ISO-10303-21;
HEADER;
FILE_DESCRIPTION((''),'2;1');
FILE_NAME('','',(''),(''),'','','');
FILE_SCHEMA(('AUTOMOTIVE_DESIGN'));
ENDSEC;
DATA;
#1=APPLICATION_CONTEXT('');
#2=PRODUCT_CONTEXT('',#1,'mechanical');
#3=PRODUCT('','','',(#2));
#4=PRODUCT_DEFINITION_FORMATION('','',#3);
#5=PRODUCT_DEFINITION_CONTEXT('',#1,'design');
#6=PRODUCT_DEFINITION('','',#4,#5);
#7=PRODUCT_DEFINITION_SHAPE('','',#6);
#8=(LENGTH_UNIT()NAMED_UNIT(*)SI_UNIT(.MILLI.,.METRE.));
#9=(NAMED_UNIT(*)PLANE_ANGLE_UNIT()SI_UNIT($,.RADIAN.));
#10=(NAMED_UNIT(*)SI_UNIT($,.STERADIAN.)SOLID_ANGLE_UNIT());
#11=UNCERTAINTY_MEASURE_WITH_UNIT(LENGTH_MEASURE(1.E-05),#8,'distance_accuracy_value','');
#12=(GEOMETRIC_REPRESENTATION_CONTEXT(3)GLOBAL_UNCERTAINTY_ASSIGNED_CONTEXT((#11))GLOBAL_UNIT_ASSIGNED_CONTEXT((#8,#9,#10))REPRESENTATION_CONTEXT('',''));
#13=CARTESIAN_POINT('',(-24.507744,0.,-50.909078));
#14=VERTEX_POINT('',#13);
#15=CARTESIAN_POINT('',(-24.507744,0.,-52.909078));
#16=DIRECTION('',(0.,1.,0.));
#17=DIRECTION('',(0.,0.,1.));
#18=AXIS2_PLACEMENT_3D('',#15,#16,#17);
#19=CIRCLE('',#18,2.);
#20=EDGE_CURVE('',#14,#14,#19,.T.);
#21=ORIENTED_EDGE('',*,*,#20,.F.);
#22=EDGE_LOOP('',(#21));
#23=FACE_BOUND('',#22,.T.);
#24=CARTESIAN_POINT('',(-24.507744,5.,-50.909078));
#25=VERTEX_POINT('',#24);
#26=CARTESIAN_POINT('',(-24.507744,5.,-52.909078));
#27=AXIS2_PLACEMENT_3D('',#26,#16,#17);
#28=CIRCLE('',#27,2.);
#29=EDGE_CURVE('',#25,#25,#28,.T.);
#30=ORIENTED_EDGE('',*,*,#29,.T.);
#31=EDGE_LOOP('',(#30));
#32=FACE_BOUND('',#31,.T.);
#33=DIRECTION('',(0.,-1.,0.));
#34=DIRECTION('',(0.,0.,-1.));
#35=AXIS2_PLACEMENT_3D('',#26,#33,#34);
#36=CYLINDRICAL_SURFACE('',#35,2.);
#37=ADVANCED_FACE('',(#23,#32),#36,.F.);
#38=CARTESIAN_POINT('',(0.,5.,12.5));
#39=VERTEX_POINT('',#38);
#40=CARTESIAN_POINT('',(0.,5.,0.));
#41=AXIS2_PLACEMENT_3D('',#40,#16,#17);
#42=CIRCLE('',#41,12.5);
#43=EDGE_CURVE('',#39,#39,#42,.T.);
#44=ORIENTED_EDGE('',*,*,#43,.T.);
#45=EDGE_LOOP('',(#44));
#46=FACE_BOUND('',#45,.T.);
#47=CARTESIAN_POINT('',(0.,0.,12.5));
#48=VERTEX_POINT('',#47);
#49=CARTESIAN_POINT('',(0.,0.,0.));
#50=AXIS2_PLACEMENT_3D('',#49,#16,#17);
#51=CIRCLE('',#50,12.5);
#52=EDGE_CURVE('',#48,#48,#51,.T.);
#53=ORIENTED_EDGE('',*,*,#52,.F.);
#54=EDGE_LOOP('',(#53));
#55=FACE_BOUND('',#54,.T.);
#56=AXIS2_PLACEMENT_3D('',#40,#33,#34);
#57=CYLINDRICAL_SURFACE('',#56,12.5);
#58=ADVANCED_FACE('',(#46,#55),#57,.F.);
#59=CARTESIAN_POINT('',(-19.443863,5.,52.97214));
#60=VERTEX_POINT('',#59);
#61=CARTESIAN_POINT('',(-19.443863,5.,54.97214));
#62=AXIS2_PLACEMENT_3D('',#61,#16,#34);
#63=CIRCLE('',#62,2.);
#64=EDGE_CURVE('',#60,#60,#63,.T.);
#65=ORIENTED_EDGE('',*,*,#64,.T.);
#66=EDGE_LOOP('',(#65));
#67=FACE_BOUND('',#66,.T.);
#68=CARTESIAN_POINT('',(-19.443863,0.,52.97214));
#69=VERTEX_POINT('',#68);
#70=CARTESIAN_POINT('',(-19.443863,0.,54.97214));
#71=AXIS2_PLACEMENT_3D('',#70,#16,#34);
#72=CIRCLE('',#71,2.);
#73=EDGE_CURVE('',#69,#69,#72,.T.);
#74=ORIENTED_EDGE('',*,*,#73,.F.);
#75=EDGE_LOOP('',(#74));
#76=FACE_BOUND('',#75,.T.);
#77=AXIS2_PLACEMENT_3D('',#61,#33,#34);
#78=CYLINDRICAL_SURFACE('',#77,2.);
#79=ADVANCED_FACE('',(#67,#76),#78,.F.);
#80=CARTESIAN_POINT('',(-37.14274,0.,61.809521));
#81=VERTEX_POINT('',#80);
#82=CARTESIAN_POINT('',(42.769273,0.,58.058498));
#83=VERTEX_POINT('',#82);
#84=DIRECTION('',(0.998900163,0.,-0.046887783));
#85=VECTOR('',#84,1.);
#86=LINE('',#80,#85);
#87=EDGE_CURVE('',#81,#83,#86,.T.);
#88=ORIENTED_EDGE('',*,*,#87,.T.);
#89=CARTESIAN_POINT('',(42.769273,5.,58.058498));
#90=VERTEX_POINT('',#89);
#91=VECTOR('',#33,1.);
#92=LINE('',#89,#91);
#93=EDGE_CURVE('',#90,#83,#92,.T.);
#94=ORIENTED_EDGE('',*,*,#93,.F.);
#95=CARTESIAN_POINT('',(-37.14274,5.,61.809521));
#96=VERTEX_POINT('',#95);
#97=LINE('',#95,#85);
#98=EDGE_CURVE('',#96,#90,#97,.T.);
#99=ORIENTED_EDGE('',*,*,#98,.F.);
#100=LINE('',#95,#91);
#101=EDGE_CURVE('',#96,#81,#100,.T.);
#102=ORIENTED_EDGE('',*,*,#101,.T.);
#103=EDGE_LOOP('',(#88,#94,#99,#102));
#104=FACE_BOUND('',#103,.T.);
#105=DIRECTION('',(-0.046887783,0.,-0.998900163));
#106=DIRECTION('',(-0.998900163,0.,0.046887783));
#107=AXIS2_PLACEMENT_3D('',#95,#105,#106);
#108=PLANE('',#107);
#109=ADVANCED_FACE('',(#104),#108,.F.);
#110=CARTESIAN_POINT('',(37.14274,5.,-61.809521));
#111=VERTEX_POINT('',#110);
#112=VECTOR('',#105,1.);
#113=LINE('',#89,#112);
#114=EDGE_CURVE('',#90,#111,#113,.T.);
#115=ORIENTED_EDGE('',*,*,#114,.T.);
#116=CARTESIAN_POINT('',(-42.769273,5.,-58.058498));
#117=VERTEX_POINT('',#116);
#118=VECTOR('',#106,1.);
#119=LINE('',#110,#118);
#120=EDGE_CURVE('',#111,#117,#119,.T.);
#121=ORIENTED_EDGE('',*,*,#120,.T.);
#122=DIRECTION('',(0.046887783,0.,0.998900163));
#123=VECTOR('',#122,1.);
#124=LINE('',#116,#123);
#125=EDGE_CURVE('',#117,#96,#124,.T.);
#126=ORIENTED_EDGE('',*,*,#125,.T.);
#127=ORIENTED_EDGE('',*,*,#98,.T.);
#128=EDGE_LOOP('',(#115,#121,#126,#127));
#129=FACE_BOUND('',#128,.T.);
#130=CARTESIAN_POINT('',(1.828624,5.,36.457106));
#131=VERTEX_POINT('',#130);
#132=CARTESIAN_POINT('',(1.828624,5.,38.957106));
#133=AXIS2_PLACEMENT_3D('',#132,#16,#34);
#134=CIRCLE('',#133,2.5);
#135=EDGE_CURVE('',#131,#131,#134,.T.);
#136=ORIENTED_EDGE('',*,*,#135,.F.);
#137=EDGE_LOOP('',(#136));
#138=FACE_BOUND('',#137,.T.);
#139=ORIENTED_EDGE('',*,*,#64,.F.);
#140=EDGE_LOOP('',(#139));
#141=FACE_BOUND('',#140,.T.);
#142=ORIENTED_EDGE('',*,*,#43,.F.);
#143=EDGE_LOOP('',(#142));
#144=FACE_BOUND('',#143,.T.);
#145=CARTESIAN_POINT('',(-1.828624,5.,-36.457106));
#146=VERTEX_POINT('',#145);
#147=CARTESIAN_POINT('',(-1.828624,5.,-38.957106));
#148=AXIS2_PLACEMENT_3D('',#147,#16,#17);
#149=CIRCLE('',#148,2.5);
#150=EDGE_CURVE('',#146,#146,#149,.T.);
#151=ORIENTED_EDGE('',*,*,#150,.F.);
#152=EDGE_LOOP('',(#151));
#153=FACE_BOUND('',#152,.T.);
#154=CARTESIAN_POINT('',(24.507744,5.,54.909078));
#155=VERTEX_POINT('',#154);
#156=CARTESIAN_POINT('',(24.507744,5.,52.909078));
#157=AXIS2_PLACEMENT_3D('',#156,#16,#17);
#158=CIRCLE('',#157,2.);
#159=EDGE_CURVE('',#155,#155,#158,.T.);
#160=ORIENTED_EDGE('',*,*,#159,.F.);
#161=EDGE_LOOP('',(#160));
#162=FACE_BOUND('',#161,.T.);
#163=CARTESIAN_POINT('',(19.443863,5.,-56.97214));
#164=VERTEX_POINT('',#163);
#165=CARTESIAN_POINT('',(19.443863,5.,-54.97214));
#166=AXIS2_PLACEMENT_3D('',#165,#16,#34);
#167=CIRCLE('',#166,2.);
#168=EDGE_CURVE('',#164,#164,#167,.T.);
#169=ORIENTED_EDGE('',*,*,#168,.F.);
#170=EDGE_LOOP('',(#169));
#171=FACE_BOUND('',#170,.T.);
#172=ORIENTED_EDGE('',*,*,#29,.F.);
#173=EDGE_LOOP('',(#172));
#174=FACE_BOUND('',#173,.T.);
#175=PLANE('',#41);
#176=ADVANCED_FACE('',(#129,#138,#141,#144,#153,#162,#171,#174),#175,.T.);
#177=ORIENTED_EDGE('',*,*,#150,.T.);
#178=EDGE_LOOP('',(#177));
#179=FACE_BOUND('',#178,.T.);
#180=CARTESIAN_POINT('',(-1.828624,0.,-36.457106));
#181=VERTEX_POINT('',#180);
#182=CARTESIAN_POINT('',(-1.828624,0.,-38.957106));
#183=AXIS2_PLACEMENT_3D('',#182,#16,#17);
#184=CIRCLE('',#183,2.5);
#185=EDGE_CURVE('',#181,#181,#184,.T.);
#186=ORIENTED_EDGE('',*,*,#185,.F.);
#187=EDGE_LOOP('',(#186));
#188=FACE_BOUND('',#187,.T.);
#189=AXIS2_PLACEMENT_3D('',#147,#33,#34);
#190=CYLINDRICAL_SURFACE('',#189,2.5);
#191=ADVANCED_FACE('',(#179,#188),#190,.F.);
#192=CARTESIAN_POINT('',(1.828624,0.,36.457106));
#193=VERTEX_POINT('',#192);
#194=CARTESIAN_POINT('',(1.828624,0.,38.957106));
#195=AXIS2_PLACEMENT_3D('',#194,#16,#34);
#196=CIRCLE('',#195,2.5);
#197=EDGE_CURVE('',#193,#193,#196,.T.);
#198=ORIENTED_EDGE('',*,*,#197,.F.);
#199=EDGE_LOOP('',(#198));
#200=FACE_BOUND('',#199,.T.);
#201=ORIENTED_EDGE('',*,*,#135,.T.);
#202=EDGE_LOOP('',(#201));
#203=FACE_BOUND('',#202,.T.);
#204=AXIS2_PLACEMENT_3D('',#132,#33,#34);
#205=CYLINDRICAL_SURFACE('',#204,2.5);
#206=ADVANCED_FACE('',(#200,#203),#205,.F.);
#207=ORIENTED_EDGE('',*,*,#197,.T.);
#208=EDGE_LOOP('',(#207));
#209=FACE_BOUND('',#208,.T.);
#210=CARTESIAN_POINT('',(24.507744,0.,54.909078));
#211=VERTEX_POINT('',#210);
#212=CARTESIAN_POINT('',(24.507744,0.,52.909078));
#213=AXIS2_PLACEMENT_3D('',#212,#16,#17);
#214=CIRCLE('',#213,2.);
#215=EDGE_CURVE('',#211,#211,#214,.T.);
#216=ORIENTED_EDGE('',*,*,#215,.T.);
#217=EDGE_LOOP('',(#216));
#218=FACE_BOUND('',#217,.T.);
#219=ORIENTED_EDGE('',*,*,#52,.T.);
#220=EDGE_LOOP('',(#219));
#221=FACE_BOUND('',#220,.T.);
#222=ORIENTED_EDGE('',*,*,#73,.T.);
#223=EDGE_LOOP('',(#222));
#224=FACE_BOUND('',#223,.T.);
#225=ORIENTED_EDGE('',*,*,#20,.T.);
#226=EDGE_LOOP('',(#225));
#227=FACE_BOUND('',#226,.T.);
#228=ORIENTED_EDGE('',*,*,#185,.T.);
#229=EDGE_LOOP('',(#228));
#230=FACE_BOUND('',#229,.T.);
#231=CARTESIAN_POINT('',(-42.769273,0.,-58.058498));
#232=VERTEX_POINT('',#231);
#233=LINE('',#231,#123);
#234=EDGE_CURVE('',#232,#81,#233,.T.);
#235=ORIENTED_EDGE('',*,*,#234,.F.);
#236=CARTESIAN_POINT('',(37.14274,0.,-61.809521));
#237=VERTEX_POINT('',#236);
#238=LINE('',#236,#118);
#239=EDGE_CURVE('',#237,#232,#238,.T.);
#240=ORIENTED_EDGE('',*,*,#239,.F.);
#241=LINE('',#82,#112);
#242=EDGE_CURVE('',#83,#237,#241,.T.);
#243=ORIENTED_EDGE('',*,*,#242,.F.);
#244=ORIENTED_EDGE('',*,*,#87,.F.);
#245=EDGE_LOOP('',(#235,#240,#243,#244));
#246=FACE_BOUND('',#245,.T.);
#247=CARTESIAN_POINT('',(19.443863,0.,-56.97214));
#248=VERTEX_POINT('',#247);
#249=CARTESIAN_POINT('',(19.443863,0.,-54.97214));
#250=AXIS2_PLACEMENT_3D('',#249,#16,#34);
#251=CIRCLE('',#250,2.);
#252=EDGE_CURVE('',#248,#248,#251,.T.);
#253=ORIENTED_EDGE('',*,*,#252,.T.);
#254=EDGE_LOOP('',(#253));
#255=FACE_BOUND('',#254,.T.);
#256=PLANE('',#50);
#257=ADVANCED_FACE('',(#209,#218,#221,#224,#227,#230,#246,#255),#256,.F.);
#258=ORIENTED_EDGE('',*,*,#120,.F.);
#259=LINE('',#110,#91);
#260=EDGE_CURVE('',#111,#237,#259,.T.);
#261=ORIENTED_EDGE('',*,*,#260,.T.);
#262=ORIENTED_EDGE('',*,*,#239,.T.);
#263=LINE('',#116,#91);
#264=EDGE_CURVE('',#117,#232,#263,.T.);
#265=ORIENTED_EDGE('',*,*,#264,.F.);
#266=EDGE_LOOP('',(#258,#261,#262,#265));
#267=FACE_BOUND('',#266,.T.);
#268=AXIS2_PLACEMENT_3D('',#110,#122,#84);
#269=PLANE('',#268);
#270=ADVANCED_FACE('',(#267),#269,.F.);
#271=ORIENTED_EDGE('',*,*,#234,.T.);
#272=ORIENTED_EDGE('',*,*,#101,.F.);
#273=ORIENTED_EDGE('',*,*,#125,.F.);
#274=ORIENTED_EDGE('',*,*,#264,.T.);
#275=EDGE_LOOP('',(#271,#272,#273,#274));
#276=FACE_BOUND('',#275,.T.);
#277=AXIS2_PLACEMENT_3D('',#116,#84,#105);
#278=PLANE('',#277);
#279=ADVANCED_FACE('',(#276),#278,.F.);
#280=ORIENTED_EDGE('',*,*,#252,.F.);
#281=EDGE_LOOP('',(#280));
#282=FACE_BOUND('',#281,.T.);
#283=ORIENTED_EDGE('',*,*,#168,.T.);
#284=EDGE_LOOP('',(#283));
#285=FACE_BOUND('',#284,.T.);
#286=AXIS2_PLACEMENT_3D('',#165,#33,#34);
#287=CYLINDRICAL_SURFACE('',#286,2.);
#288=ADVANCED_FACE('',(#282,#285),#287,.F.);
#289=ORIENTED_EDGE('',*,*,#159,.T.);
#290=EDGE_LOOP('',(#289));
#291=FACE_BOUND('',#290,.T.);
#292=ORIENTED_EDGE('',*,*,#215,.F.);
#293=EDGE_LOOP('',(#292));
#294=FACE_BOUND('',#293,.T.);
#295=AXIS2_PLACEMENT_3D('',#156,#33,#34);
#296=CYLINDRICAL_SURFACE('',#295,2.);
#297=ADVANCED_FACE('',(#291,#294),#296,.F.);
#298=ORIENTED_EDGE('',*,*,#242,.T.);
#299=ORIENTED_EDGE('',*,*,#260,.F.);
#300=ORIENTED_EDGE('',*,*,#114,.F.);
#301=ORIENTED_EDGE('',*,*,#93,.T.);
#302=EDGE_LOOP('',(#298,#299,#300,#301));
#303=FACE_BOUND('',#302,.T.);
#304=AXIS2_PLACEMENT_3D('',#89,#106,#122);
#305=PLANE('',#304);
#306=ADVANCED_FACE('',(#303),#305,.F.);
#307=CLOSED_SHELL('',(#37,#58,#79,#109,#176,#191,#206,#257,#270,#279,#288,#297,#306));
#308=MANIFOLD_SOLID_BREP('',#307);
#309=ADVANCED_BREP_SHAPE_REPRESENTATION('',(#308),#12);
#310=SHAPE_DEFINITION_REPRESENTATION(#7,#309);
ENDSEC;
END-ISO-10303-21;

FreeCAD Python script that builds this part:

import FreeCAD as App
import Part
import Sketcher

doc = App.newDocument("Part")
params = doc.addObject("Spreadsheet::Sheet", "Params")
for row, (alias, value) in enumerate([
    ("sketch1_diameter", "4 mm"),
    ("sketch1_diameter2", "5 mm"),
    ("sketch1_diameter3", "25 mm"),
    ("sketch1_length", "120 mm"),
    ("sketch1_length2", "80 mm"),
    ("pad1_length", "5 mm"),
], start=1):
    params.set(f"A{row}", alias)
    params.set(f"B{row}", "=" + value)
    params.setAlias(f"B{row}", alias)

body = doc.addObject("PartDesign::Body", "Body")

sketch1 = body.newObject("Sketcher::SketchObject", "Sketch")
sketch1.AttachmentSupport = (doc.getObject("XZ_Plane"), [""])
sketch1.MapMode = "FlatFace"
sketch1.addGeometry(Part.LineSegment(App.Vector(-42.8, -58.1, 0), App.Vector(-37.1, 61.8, 0)), False)
sketch1.addGeometry(Part.LineSegment(App.Vector(-37.1, 61.8, 0), App.Vector(42.8, 58.1, 0)), False)
sketch1.addGeometry(Part.LineSegment(App.Vector(42.8, 58.1, 0), App.Vector(37.1, -61.8, 0)), False)
sketch1.addGeometry(Part.LineSegment(App.Vector(37.1, -61.8, 0), App.Vector(-42.8, -58.1, 0)), False)
sketch1.addGeometry(Part.Circle(App.Vector(-19.4, 55, 0), App.Vector(0, 0, 1), 2), False)
sketch1.addGeometry(Part.Circle(App.Vector(1.8, 39, 0), App.Vector(0, 0, 1), 2.5), False)
sketch1.addGeometry(Part.Circle(App.Vector(24.5, 52.9, 0), App.Vector(0, 0, 1), 2), False)
sketch1.addGeometry(Part.Circle(App.Vector(-24.5, -52.9, 0), App.Vector(0, 0, 1), 2), False)
sketch1.addGeometry(Part.Circle(App.Vector(0, 0, 0), App.Vector(0, 0, 1), 12.5), False)
sketch1.addGeometry(Part.Circle(App.Vector(-1.8, -39, 0), App.Vector(0, 0, 1), 2.5), False)
sketch1.addGeometry(Part.Circle(App.Vector(19.4, -55, 0), App.Vector(0, 0, 1), 2), False)
sketch1.addConstraint(Sketcher.Constraint("Coincident", 0, 2, 1, 1))
sketch1.addConstraint(Sketcher.Constraint("Coincident", 1, 2, 2, 1))
sketch1.addConstraint(Sketcher.Constraint("Coincident", 2, 2, 3, 1))
sketch1.addConstraint(Sketcher.Constraint("Coincident", 3, 2, 0, 1))
sketch1.addConstraint(Sketcher.Constraint("Coincident", 8, 3, -1, 1))
sketch1.addConstraint(Sketcher.Constraint("Equal", 4, 6))
sketch1.addConstraint(Sketcher.Constraint("Equal", 6, 7))
sketch1.addConstraint(Sketcher.Constraint("Equal", 5, 9))
sketch1.addConstraint(Sketcher.Constraint("Equal", 7, 10))
sketch1.addConstraint(Sketcher.Constraint("Symmetric", 6, 3, 7, 3, -1, 1))
sketch1.addConstraint(Sketcher.Constraint("Symmetric", 5, 3, 9, 3, -1, 1))
sketch1.addConstraint(Sketcher.Constraint("Symmetric", 4, 3, 10, 3, -1, 1))
sketch1.addConstraint(Sketcher.Constraint("Symmetric", 0, 2, 2, 2, -1, 1))
sketch1.addConstraint(Sketcher.Constraint("Symmetric", 1, 2, 3, 2, -1, 1))
sketch1.addConstraint(Sketcher.Constraint("Perpendicular", 0, 1))
sketch1.addConstraint(Sketcher.Constraint("Diameter", 4, 4.0))
sketch1.addConstraint(Sketcher.Constraint("Diameter", 5, 5.0))
sketch1.addConstraint(Sketcher.Constraint("Diameter", 8, 25.0))
sketch1.addConstraint(Sketcher.Constraint("Distance", 0, 120.0))
sketch1.addConstraint(Sketcher.Constraint("Distance", 1, 80.0))
sketch1.addConstraint(Sketcher.Constraint("DistanceY", -1, 1, 1, 2, 58.058498))
sketch1.addConstraint(Sketcher.Constraint("DistanceY", -1, 1, 4, 3, 54.97214))
sketch1.addConstraint(Sketcher.Constraint("DistanceX", 5, 3, 6, 3, 22.67912))
sketch1.addConstraint(Sketcher.Constraint("DistanceY", 5, 3, 6, 3, 13.951971))
sketch1.addConstraint(Sketcher.Constraint("DistanceX", 7, 3, 4, 3, 5.063881))
sketch1.addConstraint(Sketcher.Constraint("DistanceX", 6, 3, 1, 2, 18.26153))
sketch1.addConstraint(Sketcher.Constraint("DistanceY", 6, 3, 1, 2, 5.149421))
sketch1.setExpression("Constraints[15]", "Params.sketch1_diameter")
sketch1.setExpression("Constraints[16]", "Params.sketch1_diameter2")
sketch1.setExpression("Constraints[17]", "Params.sketch1_diameter3")
sketch1.setExpression("Constraints[18]", "Params.sketch1_length")
sketch1.setExpression("Constraints[19]", "Params.sketch1_length2")
pad1 = body.newObject("PartDesign::Pad", "Pad")
pad1.Profile = sketch1
pad1.setExpression("Length", "Params.pad1_length")
pad1.Reversed = True

doc.recompute()
